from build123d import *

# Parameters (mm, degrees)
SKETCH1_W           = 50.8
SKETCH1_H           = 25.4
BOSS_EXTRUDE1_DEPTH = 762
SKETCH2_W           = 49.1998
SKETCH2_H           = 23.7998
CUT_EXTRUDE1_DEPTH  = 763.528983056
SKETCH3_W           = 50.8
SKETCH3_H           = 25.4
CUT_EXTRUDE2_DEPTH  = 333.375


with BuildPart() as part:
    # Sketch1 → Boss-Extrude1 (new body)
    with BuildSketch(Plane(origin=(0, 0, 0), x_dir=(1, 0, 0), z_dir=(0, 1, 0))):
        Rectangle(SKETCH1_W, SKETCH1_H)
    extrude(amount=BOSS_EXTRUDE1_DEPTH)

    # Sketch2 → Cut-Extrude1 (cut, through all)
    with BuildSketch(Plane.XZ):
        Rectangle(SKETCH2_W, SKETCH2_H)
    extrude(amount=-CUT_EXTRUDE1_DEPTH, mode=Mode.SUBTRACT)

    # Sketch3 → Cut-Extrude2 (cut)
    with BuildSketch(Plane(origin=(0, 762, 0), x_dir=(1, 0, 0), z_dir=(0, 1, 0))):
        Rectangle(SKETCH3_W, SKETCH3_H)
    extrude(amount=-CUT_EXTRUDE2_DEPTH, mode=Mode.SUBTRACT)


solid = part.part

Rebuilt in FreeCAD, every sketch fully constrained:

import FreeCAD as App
import Part
import Sketcher
from FreeCAD import Vector
Q = App.Units.Quantity


def add_polygon(sketch, points):
    """Adds a closed chain of lines whose ends are joined by coincident constraints."""
    first, n = sketch.GeometryCount, len(points)
    for a, b in zip(points, points[1:] + points[:1]):
        sketch.addGeometry(Part.LineSegment(App.Vector(*a, 0), App.Vector(*b, 0)), False)
    for i in range(n):
        sketch.addConstraint(Sketcher.Constraint("Coincident", first + i, 2, first + (i + 1) % n, 1))

doc = App.newDocument("Part")
body = doc.addObject("PartDesign::Body", "Body")

sketch1 = body.newObject("Sketcher::SketchObject", "Sketch")
sketch1.AttachmentSupport = (doc.getObject("XZ_Plane"), [""])
sketch1.MapMode = "FlatFace"
add_polygon(sketch1, [(-25, -13), (-25, 13), (25, 13), (25, -13)])
sketch1.addConstraint([
    Sketcher.Constraint("Vertical", 0),
    Sketcher.Constraint("Horizontal", 1),
    Sketcher.Constraint("Vertical", 2),
    Sketcher.Constraint("Horizontal", 3),
    Sketcher.Constraint("Symmetric", 0, 2, 2, 2, -1, 1),
    Sketcher.Constraint("DistanceX", 1, 1, 1, 2, Q("2 in")),
    Sketcher.Constraint("DistanceY", 0, 1, 0, 2, Q("1 in")),
])
pad1 = body.newObject("PartDesign::Pad", "Pad")
pad1.Profile = sketch1
pad1.Length = Q("30 in")
pad1.Reversed = True

sketch2 = body.newObject("Sketcher::SketchObject", "Sketch001")
sketch2.AttachmentSupport = (doc.getObject("XZ_Plane"), [""])
sketch2.MapMode = "FlatFace"
add_polygon(sketch2, [(-25, 12), (-25, -12), (25, -12), (25, 12)])
sketch2.addConstraint([
    Sketcher.Constraint("Vertical", 0),
    Sketcher.Constraint("Horizontal", 1),
    Sketcher.Constraint("Vertical", 2),
    Sketcher.Constraint("Horizontal", 3),
    Sketcher.Constraint("Symmetric", 0, 2, 2, 2, -1, 1),
    Sketcher.Constraint("DistanceX", 1, 1, 1, 2, Q("1.937 in")),
    Sketcher.Constraint("DistanceY", 0, 2, 0, 1, Q("0.937 in")),
])
pocket1 = body.newObject("PartDesign::Pocket", "Pocket")
pocket1.Profile = sketch2
pocket1.Type = "ThroughAll"

sketch3 = body.newObject("Sketcher::SketchObject", "Sketch002")
sketch3.AttachmentSupport = (doc.getObject("XZ_Plane"), [""])
sketch3.MapMode = "FlatFace"
sketch3.AttachmentOffset = App.Placement(Vector(0, 0, -30 * 25.4), App.Rotation())
add_polygon(sketch3, [(-25, -13), (-25, 13), (25, 13), (25, -13)])
sketch3.addConstraint([
    Sketcher.Constraint("Vertical", 0),
    Sketcher.Constraint("Horizontal", 1),
    Sketcher.Constraint("Vertical", 2),
    Sketcher.Constraint("Horizontal", 3),
    Sketcher.Constraint("Symmetric", 0, 2, 2, 2, -1, 1),
    Sketcher.Constraint("DistanceX", 1, 1, 1, 2, Q("2 in")),
    Sketcher.Constraint("DistanceY", 0, 1, 0, 2, Q("1 in")),
])
pocket2 = body.newObject("PartDesign::Pocket", "Pocket001")
pocket2.Profile = sketch3
pocket2.Length = Q("13.125 in")
pocket2.Reversed = True

doc.recompute()
